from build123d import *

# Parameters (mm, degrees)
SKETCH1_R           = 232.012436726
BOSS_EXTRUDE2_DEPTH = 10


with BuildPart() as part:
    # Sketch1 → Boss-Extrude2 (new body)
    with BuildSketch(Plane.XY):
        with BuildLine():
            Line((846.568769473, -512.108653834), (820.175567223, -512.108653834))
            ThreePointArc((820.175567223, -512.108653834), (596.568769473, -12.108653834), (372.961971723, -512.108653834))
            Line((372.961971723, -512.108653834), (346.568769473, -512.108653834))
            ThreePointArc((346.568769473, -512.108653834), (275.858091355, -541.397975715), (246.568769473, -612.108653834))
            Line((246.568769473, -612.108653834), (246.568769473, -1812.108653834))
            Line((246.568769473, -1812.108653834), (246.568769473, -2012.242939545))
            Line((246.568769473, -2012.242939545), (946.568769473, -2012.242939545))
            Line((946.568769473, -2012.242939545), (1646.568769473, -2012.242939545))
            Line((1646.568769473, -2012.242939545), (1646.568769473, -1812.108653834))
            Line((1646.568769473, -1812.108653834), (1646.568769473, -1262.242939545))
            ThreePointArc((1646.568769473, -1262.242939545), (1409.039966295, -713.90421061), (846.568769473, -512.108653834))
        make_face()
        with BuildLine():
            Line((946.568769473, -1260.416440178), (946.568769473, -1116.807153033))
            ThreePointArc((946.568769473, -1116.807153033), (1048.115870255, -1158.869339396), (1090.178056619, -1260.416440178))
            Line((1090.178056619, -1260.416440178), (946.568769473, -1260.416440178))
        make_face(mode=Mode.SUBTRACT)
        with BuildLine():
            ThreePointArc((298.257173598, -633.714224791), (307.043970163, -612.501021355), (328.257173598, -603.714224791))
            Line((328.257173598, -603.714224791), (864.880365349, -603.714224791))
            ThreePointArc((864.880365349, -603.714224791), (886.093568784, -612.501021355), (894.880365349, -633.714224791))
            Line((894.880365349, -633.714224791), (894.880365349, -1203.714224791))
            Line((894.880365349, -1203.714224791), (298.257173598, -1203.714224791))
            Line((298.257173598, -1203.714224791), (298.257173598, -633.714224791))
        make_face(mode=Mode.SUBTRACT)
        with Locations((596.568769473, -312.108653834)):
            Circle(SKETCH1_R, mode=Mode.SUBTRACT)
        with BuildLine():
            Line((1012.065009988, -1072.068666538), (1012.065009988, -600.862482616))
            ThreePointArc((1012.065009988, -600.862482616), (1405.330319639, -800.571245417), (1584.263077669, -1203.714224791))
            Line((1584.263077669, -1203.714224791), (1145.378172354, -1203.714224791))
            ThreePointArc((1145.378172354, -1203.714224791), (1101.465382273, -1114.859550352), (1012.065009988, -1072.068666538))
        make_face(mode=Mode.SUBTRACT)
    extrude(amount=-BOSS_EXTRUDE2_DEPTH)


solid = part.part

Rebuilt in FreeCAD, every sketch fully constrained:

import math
import FreeCAD as App
import Part
import Sketcher
from FreeCAD import Vector

doc = App.newDocument("Part")
body = doc.addObject("PartDesign::Body", "Body")

sketch1 = body.newObject("Sketcher::SketchObject", "Sketch")
sketch1.AttachmentSupport = (doc.getObject("XY_Plane"), [""])
sketch1.MapMode = "FlatFace"
sketch1.addGeometry([
    Part.LineSegment(Vector(847, -512, 0), Vector(820, -512, 0)),
    Part.ArcOfCircle(Part.Circle(Vector(597, -312, 0), Vector(0, 0, 1), 300), math.radians(-42), math.radians(222)),
    Part.LineSegment(Vector(373, -512, 0), Vector(347, -512, 0)),
    Part.ArcOfCircle(Part.Circle(Vector(347, -612, 0), Vector(0, 0, 1), 100), math.radians(90), math.radians(180)),
    Part.LineSegment(Vector(247, -612, 0), Vector(247, -2012, 0)),
    Part.LineSegment(Vector(247, -2012, 0), Vector(1647, -2012, 0)),
    Part.LineSegment(Vector(1647, -2012, 0), Vector(1647, -1262, 0)),
    Part.ArcOfCircle(Part.Circle(Vector(895, -1262, 0), Vector(0, 0, 1), 752), math.radians(0), math.radians(94)),
    Part.LineSegment(Vector(298, -1204, 0), Vector(298, -634, 0)),
    Part.ArcOfCircle(Part.Circle(Vector(328, -634, 0), Vector(0, 0, 1), 30), math.radians(90), math.radians(180)),
    Part.LineSegment(Vector(328, -604, 0), Vector(865, -604, 0)),
    Part.ArcOfCircle(Part.Circle(Vector(865, -634, 0), Vector(0, 0, 1), 30), math.radians(0), math.radians(90)),
    Part.LineSegment(Vector(895, -634, 0), Vector(895, -1204, 0)),
    Part.LineSegment(Vector(895, -1204, 0), Vector(298, -1204, 0)),
    Part.LineSegment(Vector(1090, -1260, 0), Vector(947, -1260, 0)),
    Part.LineSegment(Vector(947, -1260, 0), Vector(947, -1117, 0)),
    Part.ArcOfCircle(Part.Circle(Vector(947, -1260, 0), Vector(0, 0, 1), 144), math.radians(0), math.radians(90)),
    Part.ArcOfCircle(Part.Circle(Vector(995, -1223, 0), Vector(0, 0, 1), 152), math.radians(7), math.radians(83)),
    Part.LineSegment(Vector(1012, -1072, 0), Vector(1012, -601, 0)),
    Part.ArcOfCircle(Part.Circle(Vector(928, -1254, 0), Vector(0, 0, 1), 658), math.radians(4), math.radians(83)),
    Part.LineSegment(Vector(1584, -1204, 0), Vector(1145, -1204, 0)),
    Part.Circle(Vector(597, -312, 0), Vector(0, 0, 1), 232),
], False)
sketch1.addConstraint([
    Sketcher.Constraint("Coincident", 0, 2, 1, 1),
    Sketcher.Constraint("Coincident", 1, 2, 2, 1),
    Sketcher.Constraint("Tangent", 2, 2, 3, 1),
    Sketcher.Constraint("Tangent", 3, 2, 4, 1),
    Sketcher.Constraint("Coincident", 4, 2, 5, 1),
    Sketcher.Constraint("Coincident", 5, 2, 6, 1),
    Sketcher.Constraint("Tangent", 6, 2, 7, 1),
    Sketcher.Constraint("Coincident", 7, 2, 0, 1),
    Sketcher.Constraint("Tangent", 8, 2, 9, 2),
    Sketcher.Constraint("Tangent", 9, 1, 10, 1),
    Sketcher.Constraint("Tangent", 10, 2, 11, 2),
    Sketcher.Constraint("Tangent", 11, 1, 12, 1),
    Sketcher.Constraint("Coincident", 12, 2, 13, 1),
    Sketcher.Constraint("Coincident", 13, 2, 8, 1),
    Sketcher.Constraint("Coincident", 14, 2, 15, 1),
    Sketcher.Constraint("Coincident", 15, 2, 16, 2),
    Sketcher.Constraint("Coincident", 16, 1, 14, 1),
    Sketcher.Constraint("Coincident", 17, 2, 18, 1),
    Sketcher.Constraint("Coincident", 18, 2, 19, 2),
    Sketcher.Constraint("Coincident", 19, 1, 20, 1),
    Sketcher.Constraint("Coincident", 20, 2, 17, 1),
    Sketcher.Constraint("Horizontal", 0),
    Sketcher.Constraint("Horizontal", 2),
    Sketcher.Constraint("Vertical", 4),
    Sketcher.Constraint("Horizontal", 5),
    Sketcher.Constraint("Vertical", 6),
    Sketcher.Constraint("Vertical", 8),
    Sketcher.Constraint("Horizontal", 10),
    Sketcher.Constraint("Vertical", 12),
    Sketcher.Constraint("Horizontal", 13),
    Sketcher.Constraint("Horizontal", 14),
    Sketcher.Constraint("Vertical", 15),
    Sketcher.Constraint("Vertical", 18),
    Sketcher.Constraint("Horizontal", 20),
    Sketcher.Constraint("Coincident", 21, 3, 1, 3),
    Sketcher.Constraint("Coincident", 14, 2, 16, 3),
    Sketcher.Constraint("Equal", 9, 11),
    Sketcher.Constraint("Horizontal", 0, 2, 1, 2),
    Sketcher.Constraint("Vertical", 7, 3, 11, 1),
    Sketcher.Constraint("Equal", 0, 2),
    Sketcher.Constraint("Radius", 1, 300.0),
    Sketcher.Constraint("Radius", 3, 100.0),
    Sketcher.Constraint("Radius", 9, 30.0),
    Sketcher.Constraint("DistanceX", 5, 1, 5, 2, 1400.0),
    Sketcher.Constraint("DistanceY", 6, 1, 6, 2, 750.0),
    Sketcher.Constraint("DistanceY", 8, 1, 8, 2, 570.0),
    Sketcher.Constraint("DistanceX", 3, 3, 1, 3, 250.0),
    Sketcher.Constraint("DistanceY", 3, 3, 1, 3, 300.0),
    Sketcher.Constraint("DistanceX", 3, 3, 16, 3, 600.0),
    Sketcher.Constraint("Radius", 17, 151.742481),
    Sketcher.Constraint("DistanceY", 19, 3, 11, 3, 620.069999),
    Sketcher.Constraint("Diameter", 21, 464.024873),
    Sketcher.Constraint("Radius", 7, 751.688404),
    Sketcher.Constraint("Radius", 16, 143.609287),
    Sketcher.Constraint("Radius", 19, 658.331987),
    Sketcher.Constraint("DistanceX", 10, 1, 10, 2, 536.623192),
    Sketcher.Constraint("DistanceY", 7, 3, 16, 3, 1.826499),
    Sketcher.Constraint("DistanceX", 9, 3, 17, 3, 666.587499),
    Sketcher.Constraint("DistanceY", 17, 3, 17, 2, 150.762198),
    Sketcher.Constraint("DistanceX", 17, 3, 20, 2, 150.5335),
    Sketcher.Constraint("DistanceX", 20, 2, 20, 1, 438.884905),
    Sketcher.Constraint("DistanceY", 18, 1, 18, 2, 471.206184),
    Sketcher.Constraint("DistanceX", -1, 1, 1, 3, 596.568769),
    Sketcher.Constraint("DistanceY", 7, 3, -1, 1, 1262.24294),
    Sketcher.Constraint("DistanceY", 9, 3, 3, 3, 21.605571),
])
pad1 = body.newObject("PartDesign::Pad", "Pad")
pad1.Profile = sketch1
pad1.Length = 10
pad1.Reversed = True

doc.recompute()
